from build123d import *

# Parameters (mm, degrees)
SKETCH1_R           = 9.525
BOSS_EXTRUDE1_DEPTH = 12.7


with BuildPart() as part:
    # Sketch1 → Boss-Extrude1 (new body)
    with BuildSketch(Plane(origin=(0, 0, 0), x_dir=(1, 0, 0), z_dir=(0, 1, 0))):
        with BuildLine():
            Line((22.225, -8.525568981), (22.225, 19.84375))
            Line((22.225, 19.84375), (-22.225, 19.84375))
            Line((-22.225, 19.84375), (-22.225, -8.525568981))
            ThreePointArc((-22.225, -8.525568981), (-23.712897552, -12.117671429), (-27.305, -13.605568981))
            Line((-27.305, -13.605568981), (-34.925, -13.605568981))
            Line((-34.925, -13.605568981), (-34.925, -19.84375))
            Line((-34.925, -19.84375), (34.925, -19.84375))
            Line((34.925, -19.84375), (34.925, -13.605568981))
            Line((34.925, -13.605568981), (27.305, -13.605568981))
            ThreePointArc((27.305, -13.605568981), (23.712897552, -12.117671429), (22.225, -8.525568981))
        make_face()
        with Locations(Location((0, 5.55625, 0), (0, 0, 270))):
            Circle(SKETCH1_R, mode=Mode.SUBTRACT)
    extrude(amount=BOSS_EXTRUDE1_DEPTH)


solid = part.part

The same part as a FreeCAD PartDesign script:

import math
import FreeCAD as App
import Part
import Sketcher
Q = App.Units.Quantity

doc = App.newDocument("Part")
body = doc.addObject("PartDesign::Body", "Body")

# Sketch on XZ plane
sketch1 = body.newObject("Sketcher::SketchObject", "Sketch")
sketch1.AttachmentSupport = (doc.getObject("XZ_Plane"), [""])
sketch1.MapMode = "FlatFace"
sketch1.addGeometry([
    Part.LineSegment(App.Vector(22.225, 8.525569, 0), App.Vector(22.225, -19.84375, 0)),  # 0
    Part.LineSegment(App.Vector(22.225, -19.84375, 0), App.Vector(-22.225, -19.84375, 0)),  # 1
    Part.LineSegment(App.Vector(-22.225, -19.84375, 0), App.Vector(-22.225, 8.525569, 0)),  # 2
    Part.ArcOfCircle(Part.Circle(App.Vector(-27.305, 8.525569, 0), App.Vector(0, 0, 1), 5.08), math.radians(0), math.radians(90)),  # 3
    Part.LineSegment(App.Vector(-27.305, 13.605569, 0), App.Vector(-34.925, 13.605569, 0)),  # 4
    Part.LineSegment(App.Vector(-34.925, 13.605569, 0), App.Vector(-34.925, 19.84375, 0)),  # 5
    Part.LineSegment(App.Vector(-34.925, 19.84375, 0), App.Vector(34.925, 19.84375, 0)),  # 6
    Part.LineSegment(App.Vector(34.925, 19.84375, 0), App.Vector(34.925, 13.605569, 0)),  # 7
    Part.LineSegment(App.Vector(34.925, 13.605569, 0), App.Vector(27.305, 13.605569, 0)),  # 8
    Part.ArcOfCircle(Part.Circle(App.Vector(27.305, 8.525569, 0), App.Vector(0, 0, 1), 5.08), math.radians(90), math.radians(180)),  # 9
    Part.Circle(App.Vector(0, -5.55625, 0), App.Vector(0, 0, 1), 9.525),  # 10
], False)
sketch1.addConstraint([
    Sketcher.Constraint("Coincident", 0, 2, 1, 1),
    Sketcher.Constraint("Coincident", 1, 2, 2, 1),
    Sketcher.Constraint("Tangent", 2, 2, 3, 1),
    Sketcher.Constraint("Tangent", 3, 2, 4, 1),
    Sketcher.Constraint("Coincident", 4, 2, 5, 1),
    Sketcher.Constraint("Coincident", 5, 2, 6, 1),
    Sketcher.Constraint("Coincident", 6, 2, 7, 1),
    Sketcher.Constraint("Coincident", 7, 2, 8, 1),
    Sketcher.Constraint("Tangent", 8, 2, 9, 1),
    Sketcher.Constraint("Tangent", 9, 2, 0, 1),
    Sketcher.Constraint("Vertical", 0),
    Sketcher.Constraint("Horizontal", 1),
    Sketcher.Constraint("Vertical", 2),
    Sketcher.Constraint("Horizontal", 4),
    Sketcher.Constraint("Vertical", 5),
    Sketcher.Constraint("Horizontal", 6),
    Sketcher.Constraint("Vertical", 7),
    Sketcher.Constraint("Horizontal", 8),
    Sketcher.Constraint("Equal", 3, 9),
    Sketcher.Constraint("Symmetric", 3, 3, 9, 3, -2),
    Sketcher.Constraint("PointOnObject", 10, 3, -2),
    Sketcher.Constraint("Equal", 4, 8),
    Sketcher.Constraint("Radius", 3, Q("0.2 in")),
    Sketcher.Constraint("Diameter", 10, Q("0.75 in")),
    Sketcher.Constraint("DistanceX", 4, 2, 4, 1, Q("0.3 in")),
    Sketcher.Constraint("DistanceY", 10, 3, 6, 2, Q("1 in")),
    Sketcher.Constraint("DistanceX", 1, 2, 1, 1, Q("1.75 in")),
    Sketcher.Constraint("DistanceY", 10, 3, -1, 1, Q("0.21875 in")),
    Sketcher.Constraint("DistanceY", 0, 2, -1, 1, Q("0.78125 in")),
    Sketcher.Constraint("DistanceY", 0, 2, 0, 1, Q("28.369319 mm")),
])
pad1 = body.newObject("PartDesign::Pad", "Pad")
pad1.Profile = sketch1
pad1.Length = Q("0.5 in")
pad1.Reversed = True

doc.recompute()
